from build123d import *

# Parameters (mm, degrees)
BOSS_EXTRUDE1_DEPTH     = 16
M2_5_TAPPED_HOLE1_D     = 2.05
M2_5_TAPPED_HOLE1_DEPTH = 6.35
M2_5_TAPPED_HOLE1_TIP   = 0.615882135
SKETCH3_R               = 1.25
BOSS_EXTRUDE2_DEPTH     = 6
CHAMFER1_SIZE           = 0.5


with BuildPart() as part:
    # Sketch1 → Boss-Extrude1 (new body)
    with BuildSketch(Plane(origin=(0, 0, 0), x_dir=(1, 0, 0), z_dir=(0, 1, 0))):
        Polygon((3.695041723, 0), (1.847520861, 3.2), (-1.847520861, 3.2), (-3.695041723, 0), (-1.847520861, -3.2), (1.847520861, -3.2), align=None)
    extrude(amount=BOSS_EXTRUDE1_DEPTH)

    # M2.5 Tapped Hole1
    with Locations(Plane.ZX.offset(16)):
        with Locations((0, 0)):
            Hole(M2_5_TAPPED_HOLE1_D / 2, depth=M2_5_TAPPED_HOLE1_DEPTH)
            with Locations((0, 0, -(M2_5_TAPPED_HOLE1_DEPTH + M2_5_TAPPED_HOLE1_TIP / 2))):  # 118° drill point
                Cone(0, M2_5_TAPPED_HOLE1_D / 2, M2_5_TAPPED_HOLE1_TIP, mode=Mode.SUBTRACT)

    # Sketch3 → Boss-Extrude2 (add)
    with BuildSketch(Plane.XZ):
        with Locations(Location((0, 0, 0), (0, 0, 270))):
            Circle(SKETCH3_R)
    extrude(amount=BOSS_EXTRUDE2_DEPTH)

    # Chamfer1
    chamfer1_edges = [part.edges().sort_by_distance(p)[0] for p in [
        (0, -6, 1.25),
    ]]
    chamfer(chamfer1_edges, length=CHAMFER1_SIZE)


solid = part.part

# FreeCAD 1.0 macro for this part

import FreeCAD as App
import Part
import Sketcher

V = App.Vector
Q = App.Units.Quantity


def edges_at(feature, points):
    """Names of the edges that pass closest to the given points."""
    edges = feature.Shape.Edges
    near = lambda p: min(range(len(edges)), key=lambda i: edges[i].distToShape(Part.Vertex(*p))[0])
    return sorted({f"Edge{near(p) + 1}" for p in points})


def add_polygon(sketch, points):
    """Adds a closed chain of lines whose ends are joined by coincident constraints."""
    first, n = sketch.GeometryCount, len(points)
    for a, b in zip(points, points[1:] + points[:1]):
        sketch.addGeometry(Part.LineSegment(App.Vector(*a, 0), App.Vector(*b, 0)), False)
    for i in range(n):
        sketch.addConstraint(Sketcher.Constraint("Coincident", first + i, 2, first + (i + 1) % n, 1))

doc = App.newDocument("Part")
body = doc.addObject("PartDesign::Body", "Body")

sketch1 = doc.addObject("Sketcher::SketchObject", "Sketch")
body.addObject(sketch1)
sketch1.AttachmentSupport = (doc.XZ_Plane, [""])
sketch1.MapMode = "FlatFace"
add_polygon(sketch1, [(3.7, 0), (1.8, -3.2), (-1.8, -3.2), (-3.7, 0), (-1.8, 3.2), (1.8, 3.2)])
sketch1.addConstraint([
    Sketcher.Constraint("Horizontal", 1),
    Sketcher.Constraint("Horizontal", 4),
    Sketcher.Constraint("Symmetric", 0, 2, 3, 2, -1, 1),
    Sketcher.Constraint("Symmetric", 2, 2, 5, 2, -1, 1),
    Sketcher.Constraint("PointOnObject", 2, 2, -1),
    Sketcher.Constraint("Parallel", 2, 5),
    Sketcher.Constraint("Vertical", 1, 2, 3, 2),
    Sketcher.Constraint("Angle", 0, Q("-120 deg")),
    Sketcher.Constraint("DistanceY", 0, 2, -1, 1, Q("3.2 mm")),
    Sketcher.Constraint("DistanceX", 1, 2, 1, 1, Q("3.695042 mm")),
])
pad1 = doc.addObject("PartDesign::Pad", "Pad")
body.addObject(pad1)
pad1.Profile = sketch1
pad1.Length = 16
pad1.Reversed = True

sketch2 = doc.addObject("Sketcher::SketchObject", "Sketch001")
body.addObject(sketch2)
sketch2.AttachmentSupport = (doc.XZ_Plane, [""])
sketch2.MapMode = "FlatFace"
sketch2.AttachmentOffset = App.Placement(V(0, 0, -16), App.Rotation())
sketch2.addGeometry(Part.Circle(V(0, 0, 0), V(0, 0, 1), 1), False)
sketch2.addConstraint([
    Sketcher.Constraint("Coincident", 0, 3, -1, 1),
    Sketcher.Constraint("Diameter", 0, Q("2.05 mm")),
])
doc.recompute()
hole = doc.addObject("PartDesign::Hole", "Hole")
body.addObject(hole)
hole.Profile = sketch2
hole.ThreadType = "None"
hole.Diameter = 2.05
hole.DepthType = "Dimension"
hole.Depth = 6.35
hole.DrillPoint = "Angled"
hole.DrillPointAngle = 118
hole.Reversed = True

sketch3 = doc.addObject("Sketcher::SketchObject", "Sketch002")
body.addObject(sketch3)
sketch3.AttachmentSupport = (doc.XZ_Plane, [""])
sketch3.MapMode = "FlatFace"
sketch3.addGeometry(Part.Circle(V(0, 0, 0), V(0, 0, 1), 1.2), False)
sketch3.addConstraint([
    Sketcher.Constraint("Coincident", 0, 3, -1, 1),
    Sketcher.Constraint("Diameter", 0, Q("2.5 mm")),
])
pad2 = doc.addObject("PartDesign::Pad", "Pad001")
body.addObject(pad2)
pad2.Profile = sketch3
pad2.Length = 6
doc.recompute()

chamfer = doc.addObject("PartDesign::Chamfer", "Chamfer")
body.addObject(chamfer)
chamfer.Base = (pad2, edges_at(pad2, [(0, -6, 1.25)]))
chamfer.Size = 0.5

doc.recompute()
